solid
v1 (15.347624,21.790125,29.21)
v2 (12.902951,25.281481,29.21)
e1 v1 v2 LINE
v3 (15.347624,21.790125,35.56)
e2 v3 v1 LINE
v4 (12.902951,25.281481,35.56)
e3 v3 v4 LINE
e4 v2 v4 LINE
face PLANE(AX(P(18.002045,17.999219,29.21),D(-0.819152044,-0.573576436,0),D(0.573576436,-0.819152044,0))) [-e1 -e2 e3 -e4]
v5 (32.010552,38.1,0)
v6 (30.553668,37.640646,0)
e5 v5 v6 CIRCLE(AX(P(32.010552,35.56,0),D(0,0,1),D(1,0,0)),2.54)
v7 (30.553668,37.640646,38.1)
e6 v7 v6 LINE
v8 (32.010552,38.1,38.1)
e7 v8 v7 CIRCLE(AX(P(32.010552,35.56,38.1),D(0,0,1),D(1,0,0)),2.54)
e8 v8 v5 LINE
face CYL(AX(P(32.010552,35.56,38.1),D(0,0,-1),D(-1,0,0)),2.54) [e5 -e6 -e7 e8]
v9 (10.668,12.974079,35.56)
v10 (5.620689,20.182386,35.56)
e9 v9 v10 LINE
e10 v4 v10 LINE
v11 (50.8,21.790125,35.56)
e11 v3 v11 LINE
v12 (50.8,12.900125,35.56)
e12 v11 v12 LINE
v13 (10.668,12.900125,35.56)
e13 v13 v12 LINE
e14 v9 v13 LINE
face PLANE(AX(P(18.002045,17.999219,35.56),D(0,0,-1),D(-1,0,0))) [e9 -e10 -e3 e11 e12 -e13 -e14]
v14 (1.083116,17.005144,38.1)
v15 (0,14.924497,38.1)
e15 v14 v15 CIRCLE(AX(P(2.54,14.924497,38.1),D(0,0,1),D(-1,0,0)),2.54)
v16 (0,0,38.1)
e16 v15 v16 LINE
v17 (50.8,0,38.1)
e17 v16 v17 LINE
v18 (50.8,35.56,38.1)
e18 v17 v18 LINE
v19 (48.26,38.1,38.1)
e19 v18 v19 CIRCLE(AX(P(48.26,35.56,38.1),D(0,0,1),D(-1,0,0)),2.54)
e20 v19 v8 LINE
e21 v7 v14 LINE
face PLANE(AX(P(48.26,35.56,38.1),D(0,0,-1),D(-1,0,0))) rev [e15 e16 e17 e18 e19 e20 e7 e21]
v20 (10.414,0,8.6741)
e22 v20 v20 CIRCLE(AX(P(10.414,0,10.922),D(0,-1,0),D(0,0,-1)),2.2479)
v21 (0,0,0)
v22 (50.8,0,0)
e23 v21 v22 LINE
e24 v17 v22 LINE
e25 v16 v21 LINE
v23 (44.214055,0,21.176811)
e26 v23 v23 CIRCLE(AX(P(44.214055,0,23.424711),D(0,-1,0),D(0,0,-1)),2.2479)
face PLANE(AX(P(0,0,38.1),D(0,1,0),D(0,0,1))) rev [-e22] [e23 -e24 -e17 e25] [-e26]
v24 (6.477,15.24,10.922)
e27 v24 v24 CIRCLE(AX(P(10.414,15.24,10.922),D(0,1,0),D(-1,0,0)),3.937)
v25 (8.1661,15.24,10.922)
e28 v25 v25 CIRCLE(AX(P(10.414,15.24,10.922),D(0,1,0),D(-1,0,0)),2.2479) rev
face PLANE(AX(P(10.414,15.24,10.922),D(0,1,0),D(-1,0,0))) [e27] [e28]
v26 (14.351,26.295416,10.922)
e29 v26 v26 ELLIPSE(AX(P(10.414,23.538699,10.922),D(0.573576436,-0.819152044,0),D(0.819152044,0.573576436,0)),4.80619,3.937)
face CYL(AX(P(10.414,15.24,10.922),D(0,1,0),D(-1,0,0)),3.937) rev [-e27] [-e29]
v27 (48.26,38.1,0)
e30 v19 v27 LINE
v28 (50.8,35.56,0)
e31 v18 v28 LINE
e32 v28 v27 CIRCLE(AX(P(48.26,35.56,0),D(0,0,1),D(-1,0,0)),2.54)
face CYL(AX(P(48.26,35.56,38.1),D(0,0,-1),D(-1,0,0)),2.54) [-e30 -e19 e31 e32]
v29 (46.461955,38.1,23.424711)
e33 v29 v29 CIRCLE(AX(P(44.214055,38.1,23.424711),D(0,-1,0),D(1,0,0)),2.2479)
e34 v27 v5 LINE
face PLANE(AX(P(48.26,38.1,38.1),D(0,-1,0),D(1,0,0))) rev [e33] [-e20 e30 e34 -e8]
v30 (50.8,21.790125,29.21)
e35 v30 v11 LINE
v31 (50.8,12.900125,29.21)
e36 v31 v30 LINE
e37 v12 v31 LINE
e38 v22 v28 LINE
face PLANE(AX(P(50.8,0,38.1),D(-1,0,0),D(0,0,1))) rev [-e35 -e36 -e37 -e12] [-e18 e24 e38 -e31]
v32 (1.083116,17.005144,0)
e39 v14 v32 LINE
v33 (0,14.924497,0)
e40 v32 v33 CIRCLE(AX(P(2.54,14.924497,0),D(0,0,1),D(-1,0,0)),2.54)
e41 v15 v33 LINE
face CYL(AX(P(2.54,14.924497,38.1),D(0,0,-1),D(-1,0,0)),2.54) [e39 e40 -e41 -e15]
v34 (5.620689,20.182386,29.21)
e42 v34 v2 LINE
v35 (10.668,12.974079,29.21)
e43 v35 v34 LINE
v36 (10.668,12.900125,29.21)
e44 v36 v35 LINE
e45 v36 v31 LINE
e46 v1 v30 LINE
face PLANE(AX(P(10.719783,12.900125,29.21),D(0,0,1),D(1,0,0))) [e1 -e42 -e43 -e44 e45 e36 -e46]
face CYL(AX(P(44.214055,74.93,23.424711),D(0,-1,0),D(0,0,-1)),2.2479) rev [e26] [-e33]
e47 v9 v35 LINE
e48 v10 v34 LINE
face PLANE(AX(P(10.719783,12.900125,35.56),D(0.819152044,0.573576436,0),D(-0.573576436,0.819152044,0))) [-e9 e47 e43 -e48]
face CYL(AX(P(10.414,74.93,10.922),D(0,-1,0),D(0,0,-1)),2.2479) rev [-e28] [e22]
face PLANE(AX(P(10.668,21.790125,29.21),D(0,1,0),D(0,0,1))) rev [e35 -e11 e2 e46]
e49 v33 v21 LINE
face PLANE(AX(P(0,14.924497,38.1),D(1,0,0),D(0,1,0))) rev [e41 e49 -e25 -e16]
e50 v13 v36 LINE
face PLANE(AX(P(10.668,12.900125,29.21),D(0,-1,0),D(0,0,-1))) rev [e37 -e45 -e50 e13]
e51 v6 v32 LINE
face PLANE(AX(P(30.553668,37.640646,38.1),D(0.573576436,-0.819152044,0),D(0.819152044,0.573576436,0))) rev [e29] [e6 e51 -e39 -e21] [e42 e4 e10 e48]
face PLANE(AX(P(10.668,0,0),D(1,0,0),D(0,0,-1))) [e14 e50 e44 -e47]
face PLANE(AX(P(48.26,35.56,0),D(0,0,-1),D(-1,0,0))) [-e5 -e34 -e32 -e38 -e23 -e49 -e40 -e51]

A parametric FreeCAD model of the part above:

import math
import FreeCAD as App
import Part
import Sketcher

V = App.Vector
Q = App.Units.Quantity


def add_polygon(sketch, points):
    """Adds a closed chain of lines whose ends are joined by coincident constraints."""
    first, n = sketch.GeometryCount, len(points)
    for a, b in zip(points, points[1:] + points[:1]):
        sketch.addGeometry(Part.LineSegment(App.Vector(*a, 0), App.Vector(*b, 0)), False)
    for i in range(n):
        sketch.addConstraint(Sketcher.Constraint("Coincident", first + i, 2, first + (i + 1) % n, 1))

doc = App.newDocument("Part")
body = doc.addObject("PartDesign::Body", "Body")

sketch1 = body.newObject("Sketcher::SketchObject", "Sketch")
sketch1.AttachmentSupport = (doc.getObject("XY_Plane"), [""])
sketch1.MapMode = "FlatFace"
sketch1.addGeometry([
    Part.LineSegment(V(0, 0, 0), V(50.8, 0, 0)),
    Part.LineSegment(V(50.8, 0, 0), V(50.8, 35.6, 0)),
    Part.ArcOfCircle(Part.Circle(V(48.3, 35.6, 0), V(0, 0, 1), 2.5), math.radians(0), math.radians(90)),
    Part.LineSegment(V(48.3, 38.1, 0), V(32, 38.1, 0)),
    Part.ArcOfCircle(Part.Circle(V(32, 35.6, 0), V(0, 0, 1), 2.5), math.radians(90), math.radians(125)),
    Part.LineSegment(V(30.6, 37.6, 0), V(1.1, 17, 0)),
    Part.ArcOfCircle(Part.Circle(V(2.5, 14.9, 0), V(0, 0, 1), 2.5), math.radians(125), math.radians(180)),
    Part.LineSegment(V(0, 14.9, 0), V(0, 0, 0)),
], False)
sketch1.addConstraint([
    Sketcher.Constraint("Coincident", 0, 2, 1, 1),
    Sketcher.Constraint("Tangent", 1, 2, 2, 1),
    Sketcher.Constraint("Tangent", 2, 2, 3, 1),
    Sketcher.Constraint("Tangent", 3, 2, 4, 1),
    Sketcher.Constraint("Tangent", 4, 2, 5, 1),
    Sketcher.Constraint("Tangent", 5, 2, 6, 1),
    Sketcher.Constraint("Tangent", 6, 2, 7, 1),
    Sketcher.Constraint("Coincident", 7, 2, 0, 1),
    Sketcher.Constraint("Horizontal", 0),
    Sketcher.Constraint("Vertical", 1),
    Sketcher.Constraint("Horizontal", 3),
    Sketcher.Constraint("Vertical", 7),
    Sketcher.Constraint("Coincident", 7, 2, -1, 1),
    Sketcher.Constraint("Equal", 2, 4),
    Sketcher.Constraint("Equal", 4, 6),
    Sketcher.Constraint("Radius", 2, Q("0.1 in")),
    Sketcher.Constraint("DistanceX", 0, 1, 0, 2, Q("2 in")),
    Sketcher.Constraint("DistanceY", 1, 1, 1, 2, Q("1.4 in")),
    Sketcher.Constraint("Angle", 5, Q("-145 deg")),
    Sketcher.Constraint("Distance", 5, Q("35.976901 mm")),
])
pad1 = body.newObject("PartDesign::Pad", "Pad")
pad1.Profile = sketch1
pad1.Length = Q("1.5 in")

sketch2 = body.newObject("Sketcher::SketchObject", "Sketch001")
sketch2.Placement = App.Placement(V(-7.63347, 10.901725, 0), App.Rotation(V(0.819152044, 0.573576436, 0), V(0, 0, -0.999999999), V(-0.573576436, 0.819152044, 0), "ZXY"))
add_polygon(sketch2, [(16, -29), (16, -36), (25, -36), (25, -29)])
sketch2.addConstraint([
    Sketcher.Constraint("Vertical", 0),
    Sketcher.Constraint("Horizontal", 1),
    Sketcher.Constraint("Vertical", 2),
    Sketcher.Constraint("Horizontal", 3),
    Sketcher.Constraint("DistanceX", 1, 1, 1, 2, Q("0.35 in")),
    Sketcher.Constraint("DistanceY", 0, 2, 0, 1, Q("0.25 in")),
    Sketcher.Constraint("DistanceY", 0, 2, -1, 1, Q("1.4 in")),
    Sketcher.Constraint("DistanceX", -1, 1, 0, 2, Q("16.18034 mm")),
])
pocket1 = body.newObject("PartDesign::Pocket", "Pocket")
pocket1.Profile = sketch2
pocket1.Length = Q("0.35 in")

sketch3 = body.newObject("Sketcher::SketchObject", "Sketch002")
sketch3.AttachmentSupport = (doc.getObject("YZ_Plane"), [""])
sketch3.MapMode = "FlatFace"
sketch3.AttachmentOffset = App.Placement(V(0, 0, 2 * 25.4), App.Rotation())
add_polygon(sketch3, [(22, 36), (13, 36), (13, 29), (22, 29)])
sketch3.addConstraint([
    Sketcher.Constraint("Horizontal", 0),
    Sketcher.Constraint("Vertical", 1),
    Sketcher.Constraint("Horizontal", 2),
    Sketcher.Constraint("Vertical", 3),
    Sketcher.Constraint("DistanceX", 0, 2, 0, 1, Q("0.35 in")),
    Sketcher.Constraint("DistanceY", 1, 2, 1, 1, Q("0.25 in")),
    Sketcher.Constraint("DistanceY", -1, 1, 0, 2, Q("1.4 in")),
    Sketcher.Constraint("DistanceX", -1, 1, 0, 2, Q("12.900125 mm")),
])
pocket2 = body.newObject("PartDesign::Pocket", "Pocket001")
pocket2.Profile = sketch3
pocket2.Length = Q("1.58 in")

sketch4 = body.newObject("Sketcher::SketchObject", "Sketch003")
sketch4.AttachmentSupport = (doc.getObject("XZ_Plane"), [""])
sketch4.MapMode = "FlatFace"
sketch4.addGeometry([
    Part.Circle(V(44.2, 23.4, 0), V(0, 0, 1), 2.2),
    Part.Circle(V(10.4, 10.9, 0), V(0, 0, 1), 2.2),
], False)
sketch4.addConstraint([
    Sketcher.Constraint("Equal", 0, 1),
    Sketcher.Constraint("Diameter", 0, Q("0.177 in")),
    Sketcher.Constraint("DistanceX", -1, 1, 1, 3, Q("0.41 in")),
    Sketcher.Constraint("DistanceY", -1, 1, 1, 3, Q("0.43 in")),
    Sketcher.Constraint("DistanceY", -1, 1, 0, 3, Q("23.424711 mm")),
    Sketcher.Constraint("DistanceX", -1, 1, 0, 3, Q("44.214055 mm")),
])
pocket3 = body.newObject("PartDesign::Pocket", "Pocket002")
pocket3.Profile = sketch4
pocket3.Length = Q("2.95 in")

sketch5 = body.newObject("Sketcher::SketchObject", "Sketch004")
sketch5.AttachmentSupport = (doc.getObject("XZ_Plane"), [""])
sketch5.MapMode = "FlatFace"
sketch5.AttachmentOffset = App.Placement(V(0, 0, -1.05 * 25.4), App.Rotation())
sketch5.addGeometry(Part.Circle(V(10.4, 10.9, 0), V(0, 0, 1), 3.9), False)
sketch5.addConstraint([
    Sketcher.Constraint("Diameter", 0, Q("0.31 in")),
    Sketcher.Constraint("DistanceX", -1, 1, 0, 3, Q("0.41 in")),
    Sketcher.Constraint("DistanceY", -1, 1, 0, 3, Q("0.43 in")),
])
pocket4 = body.newObject("PartDesign::Pocket", "Pocket003")
pocket4.Profile = sketch5
pocket4.Length = Q("0.45 in")
pocket4.Reversed = True

doc.recompute()
